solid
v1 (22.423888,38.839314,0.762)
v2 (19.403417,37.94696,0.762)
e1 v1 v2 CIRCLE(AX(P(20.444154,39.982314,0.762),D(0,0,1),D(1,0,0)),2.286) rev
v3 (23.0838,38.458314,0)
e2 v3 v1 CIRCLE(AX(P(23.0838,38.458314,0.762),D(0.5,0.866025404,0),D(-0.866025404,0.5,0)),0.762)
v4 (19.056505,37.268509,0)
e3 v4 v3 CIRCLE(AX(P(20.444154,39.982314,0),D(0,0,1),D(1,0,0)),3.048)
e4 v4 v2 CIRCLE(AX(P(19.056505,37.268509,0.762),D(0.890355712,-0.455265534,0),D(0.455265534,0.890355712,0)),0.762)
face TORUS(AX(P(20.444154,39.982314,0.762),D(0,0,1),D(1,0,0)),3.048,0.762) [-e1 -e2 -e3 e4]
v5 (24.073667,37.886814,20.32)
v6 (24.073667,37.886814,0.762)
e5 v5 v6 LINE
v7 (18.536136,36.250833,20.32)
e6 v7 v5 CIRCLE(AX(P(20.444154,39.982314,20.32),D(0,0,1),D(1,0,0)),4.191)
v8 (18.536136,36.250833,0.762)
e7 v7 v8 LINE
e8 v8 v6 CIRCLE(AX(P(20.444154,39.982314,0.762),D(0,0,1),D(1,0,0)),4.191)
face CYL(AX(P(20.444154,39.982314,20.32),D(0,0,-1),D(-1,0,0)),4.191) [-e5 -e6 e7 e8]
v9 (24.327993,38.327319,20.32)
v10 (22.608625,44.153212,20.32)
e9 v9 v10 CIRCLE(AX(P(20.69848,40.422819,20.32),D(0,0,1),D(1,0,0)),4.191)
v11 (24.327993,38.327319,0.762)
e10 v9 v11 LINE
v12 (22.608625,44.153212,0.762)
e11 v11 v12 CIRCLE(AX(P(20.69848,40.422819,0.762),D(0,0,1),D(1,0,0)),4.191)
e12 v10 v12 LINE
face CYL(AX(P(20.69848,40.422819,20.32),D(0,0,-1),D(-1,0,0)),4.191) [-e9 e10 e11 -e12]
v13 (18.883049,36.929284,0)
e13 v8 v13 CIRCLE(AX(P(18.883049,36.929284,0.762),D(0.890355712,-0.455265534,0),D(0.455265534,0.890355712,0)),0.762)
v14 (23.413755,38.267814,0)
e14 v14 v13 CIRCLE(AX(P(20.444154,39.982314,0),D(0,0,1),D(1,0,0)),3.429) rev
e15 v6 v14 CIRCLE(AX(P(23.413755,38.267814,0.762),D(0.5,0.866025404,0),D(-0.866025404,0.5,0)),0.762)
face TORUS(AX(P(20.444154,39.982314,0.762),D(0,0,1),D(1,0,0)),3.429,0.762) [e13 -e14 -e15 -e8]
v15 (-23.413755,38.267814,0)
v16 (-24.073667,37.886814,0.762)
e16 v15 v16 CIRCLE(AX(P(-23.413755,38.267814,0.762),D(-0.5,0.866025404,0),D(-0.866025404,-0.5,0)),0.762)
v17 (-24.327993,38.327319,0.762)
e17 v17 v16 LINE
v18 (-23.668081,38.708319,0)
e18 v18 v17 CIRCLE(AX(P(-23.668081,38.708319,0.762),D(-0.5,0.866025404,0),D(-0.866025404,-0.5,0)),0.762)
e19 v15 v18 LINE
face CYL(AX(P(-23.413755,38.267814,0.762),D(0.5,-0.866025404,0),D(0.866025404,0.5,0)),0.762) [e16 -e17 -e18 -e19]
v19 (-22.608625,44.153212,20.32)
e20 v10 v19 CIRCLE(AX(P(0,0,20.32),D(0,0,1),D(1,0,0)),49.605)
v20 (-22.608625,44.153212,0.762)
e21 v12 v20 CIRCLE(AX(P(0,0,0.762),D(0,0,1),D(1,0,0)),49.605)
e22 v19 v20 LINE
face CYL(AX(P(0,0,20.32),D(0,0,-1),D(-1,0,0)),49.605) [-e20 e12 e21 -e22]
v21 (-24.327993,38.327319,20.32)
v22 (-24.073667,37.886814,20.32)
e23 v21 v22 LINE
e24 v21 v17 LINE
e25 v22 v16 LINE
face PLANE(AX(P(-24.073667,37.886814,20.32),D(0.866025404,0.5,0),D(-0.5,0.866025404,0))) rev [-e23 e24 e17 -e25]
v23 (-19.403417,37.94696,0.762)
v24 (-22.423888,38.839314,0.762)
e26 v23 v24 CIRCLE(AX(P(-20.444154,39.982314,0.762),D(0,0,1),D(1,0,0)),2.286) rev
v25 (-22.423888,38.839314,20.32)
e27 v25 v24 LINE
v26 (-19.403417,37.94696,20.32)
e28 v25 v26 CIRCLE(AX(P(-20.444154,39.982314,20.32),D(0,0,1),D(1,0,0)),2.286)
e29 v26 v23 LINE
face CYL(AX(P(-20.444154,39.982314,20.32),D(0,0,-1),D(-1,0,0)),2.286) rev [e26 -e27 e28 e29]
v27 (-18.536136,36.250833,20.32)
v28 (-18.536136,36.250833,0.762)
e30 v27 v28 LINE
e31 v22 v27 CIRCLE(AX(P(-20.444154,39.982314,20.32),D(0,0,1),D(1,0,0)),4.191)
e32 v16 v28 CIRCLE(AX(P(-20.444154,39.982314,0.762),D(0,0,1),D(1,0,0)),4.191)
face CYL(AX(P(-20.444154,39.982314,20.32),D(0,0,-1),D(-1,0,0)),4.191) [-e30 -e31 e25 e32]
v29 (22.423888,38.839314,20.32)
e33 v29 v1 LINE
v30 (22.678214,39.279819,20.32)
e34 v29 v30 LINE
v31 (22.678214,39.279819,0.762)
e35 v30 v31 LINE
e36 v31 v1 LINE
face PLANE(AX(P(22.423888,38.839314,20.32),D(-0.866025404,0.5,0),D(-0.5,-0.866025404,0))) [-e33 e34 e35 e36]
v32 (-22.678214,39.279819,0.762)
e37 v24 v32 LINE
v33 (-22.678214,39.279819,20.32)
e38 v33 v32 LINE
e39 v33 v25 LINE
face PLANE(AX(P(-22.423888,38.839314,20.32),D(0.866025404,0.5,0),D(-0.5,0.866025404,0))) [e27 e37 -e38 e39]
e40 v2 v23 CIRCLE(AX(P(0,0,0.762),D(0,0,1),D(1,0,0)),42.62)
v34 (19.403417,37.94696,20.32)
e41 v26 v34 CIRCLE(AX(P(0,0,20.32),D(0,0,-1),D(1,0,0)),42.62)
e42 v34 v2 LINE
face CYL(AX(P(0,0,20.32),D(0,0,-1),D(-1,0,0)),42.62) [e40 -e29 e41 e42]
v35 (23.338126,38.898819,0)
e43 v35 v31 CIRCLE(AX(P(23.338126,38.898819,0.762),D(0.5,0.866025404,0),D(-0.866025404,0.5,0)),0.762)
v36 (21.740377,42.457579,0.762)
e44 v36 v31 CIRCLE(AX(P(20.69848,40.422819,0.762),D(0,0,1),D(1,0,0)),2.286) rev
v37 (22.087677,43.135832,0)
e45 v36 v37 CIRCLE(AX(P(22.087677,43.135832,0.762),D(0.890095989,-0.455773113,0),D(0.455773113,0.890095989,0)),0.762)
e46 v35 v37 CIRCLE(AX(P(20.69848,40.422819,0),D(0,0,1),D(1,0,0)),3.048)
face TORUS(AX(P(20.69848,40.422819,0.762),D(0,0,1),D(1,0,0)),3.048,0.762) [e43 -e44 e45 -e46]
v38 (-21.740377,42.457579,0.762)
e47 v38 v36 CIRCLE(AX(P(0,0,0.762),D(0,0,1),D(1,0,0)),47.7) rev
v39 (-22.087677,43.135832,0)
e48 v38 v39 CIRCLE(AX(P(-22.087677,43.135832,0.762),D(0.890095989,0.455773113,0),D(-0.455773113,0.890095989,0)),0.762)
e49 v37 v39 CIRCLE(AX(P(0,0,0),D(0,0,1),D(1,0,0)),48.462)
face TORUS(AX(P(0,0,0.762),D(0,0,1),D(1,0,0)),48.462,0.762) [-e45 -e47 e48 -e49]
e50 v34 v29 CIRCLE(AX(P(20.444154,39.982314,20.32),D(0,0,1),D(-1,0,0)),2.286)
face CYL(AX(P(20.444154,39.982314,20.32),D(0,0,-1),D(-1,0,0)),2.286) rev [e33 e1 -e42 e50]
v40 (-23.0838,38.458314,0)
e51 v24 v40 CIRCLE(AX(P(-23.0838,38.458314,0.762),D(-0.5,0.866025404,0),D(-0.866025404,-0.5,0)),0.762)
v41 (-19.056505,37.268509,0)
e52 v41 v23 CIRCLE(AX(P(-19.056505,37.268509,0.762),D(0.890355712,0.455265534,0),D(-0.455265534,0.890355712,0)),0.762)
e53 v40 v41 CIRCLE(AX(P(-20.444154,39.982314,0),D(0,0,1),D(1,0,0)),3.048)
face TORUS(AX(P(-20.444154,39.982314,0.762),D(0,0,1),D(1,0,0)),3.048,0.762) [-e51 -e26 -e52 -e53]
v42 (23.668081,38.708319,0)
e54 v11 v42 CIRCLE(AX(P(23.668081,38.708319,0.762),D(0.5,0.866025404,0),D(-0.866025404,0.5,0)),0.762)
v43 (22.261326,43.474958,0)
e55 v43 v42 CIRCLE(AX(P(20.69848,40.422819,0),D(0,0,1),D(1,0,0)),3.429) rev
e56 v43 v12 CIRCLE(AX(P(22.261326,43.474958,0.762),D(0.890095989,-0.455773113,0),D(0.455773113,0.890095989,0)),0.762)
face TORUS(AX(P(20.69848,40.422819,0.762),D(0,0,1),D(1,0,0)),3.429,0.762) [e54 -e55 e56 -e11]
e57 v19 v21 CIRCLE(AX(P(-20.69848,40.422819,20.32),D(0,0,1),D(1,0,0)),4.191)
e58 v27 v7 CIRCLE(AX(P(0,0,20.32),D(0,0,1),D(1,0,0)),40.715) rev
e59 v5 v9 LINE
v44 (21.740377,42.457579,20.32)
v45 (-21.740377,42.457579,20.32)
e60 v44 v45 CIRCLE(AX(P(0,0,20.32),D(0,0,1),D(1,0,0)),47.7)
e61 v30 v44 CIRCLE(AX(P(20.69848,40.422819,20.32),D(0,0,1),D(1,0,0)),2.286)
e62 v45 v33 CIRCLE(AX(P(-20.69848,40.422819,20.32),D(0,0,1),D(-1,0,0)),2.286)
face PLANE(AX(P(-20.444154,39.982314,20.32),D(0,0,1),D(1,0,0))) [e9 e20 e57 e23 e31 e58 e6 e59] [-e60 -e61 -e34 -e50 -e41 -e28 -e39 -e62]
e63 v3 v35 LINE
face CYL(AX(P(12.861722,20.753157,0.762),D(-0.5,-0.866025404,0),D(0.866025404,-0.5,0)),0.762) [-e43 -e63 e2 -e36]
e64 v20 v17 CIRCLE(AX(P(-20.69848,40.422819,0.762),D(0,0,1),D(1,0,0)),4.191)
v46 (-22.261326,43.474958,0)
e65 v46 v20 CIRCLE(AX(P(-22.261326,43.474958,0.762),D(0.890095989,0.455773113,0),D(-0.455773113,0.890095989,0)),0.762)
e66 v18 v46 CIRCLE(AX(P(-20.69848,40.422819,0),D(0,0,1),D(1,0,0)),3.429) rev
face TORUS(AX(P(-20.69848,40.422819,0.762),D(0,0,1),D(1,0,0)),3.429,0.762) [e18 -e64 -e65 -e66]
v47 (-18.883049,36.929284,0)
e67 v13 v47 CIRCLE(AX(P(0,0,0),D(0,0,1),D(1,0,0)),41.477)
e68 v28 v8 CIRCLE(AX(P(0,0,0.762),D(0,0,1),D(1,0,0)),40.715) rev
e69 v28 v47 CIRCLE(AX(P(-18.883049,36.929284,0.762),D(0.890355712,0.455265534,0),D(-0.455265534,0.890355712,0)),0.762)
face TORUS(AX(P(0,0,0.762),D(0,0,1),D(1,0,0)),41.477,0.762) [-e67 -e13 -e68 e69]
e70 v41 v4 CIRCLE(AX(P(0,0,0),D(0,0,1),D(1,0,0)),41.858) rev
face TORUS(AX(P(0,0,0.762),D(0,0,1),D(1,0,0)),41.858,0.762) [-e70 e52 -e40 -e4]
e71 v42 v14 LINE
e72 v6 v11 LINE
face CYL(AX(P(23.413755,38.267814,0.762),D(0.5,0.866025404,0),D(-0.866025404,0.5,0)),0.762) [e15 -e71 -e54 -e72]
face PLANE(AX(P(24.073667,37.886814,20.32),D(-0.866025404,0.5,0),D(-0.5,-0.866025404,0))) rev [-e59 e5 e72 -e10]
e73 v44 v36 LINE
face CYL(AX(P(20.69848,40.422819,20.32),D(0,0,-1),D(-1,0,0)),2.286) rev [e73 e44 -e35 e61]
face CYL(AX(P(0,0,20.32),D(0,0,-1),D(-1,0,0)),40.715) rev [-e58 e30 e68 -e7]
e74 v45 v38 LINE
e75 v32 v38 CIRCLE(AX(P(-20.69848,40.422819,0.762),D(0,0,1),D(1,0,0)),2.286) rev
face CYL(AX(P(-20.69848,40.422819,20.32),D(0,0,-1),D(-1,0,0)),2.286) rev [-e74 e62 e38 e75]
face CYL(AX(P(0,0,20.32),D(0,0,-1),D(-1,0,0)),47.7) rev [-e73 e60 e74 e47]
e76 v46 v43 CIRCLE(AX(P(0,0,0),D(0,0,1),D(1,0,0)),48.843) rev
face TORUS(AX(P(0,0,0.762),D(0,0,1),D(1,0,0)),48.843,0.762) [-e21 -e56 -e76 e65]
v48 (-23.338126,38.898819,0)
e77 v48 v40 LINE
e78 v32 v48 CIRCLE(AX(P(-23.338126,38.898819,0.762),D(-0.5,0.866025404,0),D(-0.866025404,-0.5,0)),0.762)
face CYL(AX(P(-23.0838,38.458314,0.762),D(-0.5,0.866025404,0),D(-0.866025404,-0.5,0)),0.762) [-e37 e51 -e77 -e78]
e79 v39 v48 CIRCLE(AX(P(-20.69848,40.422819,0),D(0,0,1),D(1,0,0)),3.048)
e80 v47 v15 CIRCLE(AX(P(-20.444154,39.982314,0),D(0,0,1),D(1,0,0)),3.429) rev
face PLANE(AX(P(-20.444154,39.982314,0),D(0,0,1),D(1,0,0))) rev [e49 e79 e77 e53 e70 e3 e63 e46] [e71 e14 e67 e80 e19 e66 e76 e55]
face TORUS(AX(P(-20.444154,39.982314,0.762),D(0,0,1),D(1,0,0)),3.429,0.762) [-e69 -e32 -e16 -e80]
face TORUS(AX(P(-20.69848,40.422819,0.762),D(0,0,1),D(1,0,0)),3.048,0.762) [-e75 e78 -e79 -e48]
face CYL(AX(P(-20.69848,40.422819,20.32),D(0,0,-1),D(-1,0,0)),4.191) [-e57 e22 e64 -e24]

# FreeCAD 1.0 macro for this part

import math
import FreeCAD as App
import Part
import Sketcher

V = App.Vector
Q = App.Units.Quantity


def edges_at(feature, points):
    """Names of the edges that pass closest to the given points."""
    edges = feature.Shape.Edges
    near = lambda p: min(range(len(edges)), key=lambda i: edges[i].distToShape(Part.Vertex(*p))[0])
    return sorted({f"Edge{near(p) + 1}" for p in points})

doc = App.newDocument("Part")
body = doc.addObject("PartDesign::Body", "Body")

sketch1 = body.newObject("Sketcher::SketchObject", "Sketch")
sketch1.AttachmentSupport = (doc.getObject("XY_Plane"), [""])
sketch1.MapMode = "FlatFace"
sketch1.addGeometry([
    Part.LineSegment(V(24.1, 37.9, 0), V(24.3, 38.3, 0)),
    Part.ArcOfCircle(Part.Circle(V(20.7, 40.4, 0), V(0, 0, 1), 4.2), math.radians(-30), math.radians(63)),
    Part.ArcOfCircle(Part.Circle(V(0, 0, 0), V(0, 0, 1), 49.6), math.radians(63), math.radians(117)),
    Part.ArcOfCircle(Part.Circle(V(-20.7, 40.4, 0), V(0, 0, 1), 4.2), math.radians(117), math.radians(210)),
    Part.LineSegment(V(-24.3, 38.3, 0), V(-24.1, 37.9, 0)),
    Part.ArcOfCircle(Part.Circle(V(-20.4, 40, 0), V(0, 0, 1), 4.2), math.radians(-150), math.radians(-63)),
    Part.ArcOfCircle(Part.Circle(V(0, 0, 0), V(0, 0, 1), 40.7), math.radians(63), math.radians(117)),
    Part.ArcOfCircle(Part.Circle(V(20.4, 40, 0), V(0, 0, 1), 4.2), math.radians(-117), math.radians(-30)),
    Part.LineSegment(V(22.7, 39.3, 0), V(22.4, 38.8, 0)),
    Part.ArcOfCircle(Part.Circle(V(20.4, 40, 0), V(0, 0, 1), 2.3), math.radians(-117), math.radians(-30)),
    Part.ArcOfCircle(Part.Circle(V(0, 0, 0), V(0, 0, 1), 42.6), math.radians(63), math.radians(117)),
    Part.ArcOfCircle(Part.Circle(V(-20.4, 40, 0), V(0, 0, 1), 2.3), math.radians(-150), math.radians(-63)),
    Part.LineSegment(V(-22.4, 38.8, 0), V(-22.7, 39.3, 0)),
    Part.ArcOfCircle(Part.Circle(V(-20.7, 40.4, 0), V(0, 0, 1), 2.3), math.radians(117), math.radians(210)),
    Part.ArcOfCircle(Part.Circle(V(0, 0, 0), V(0, 0, 1), 47.7), math.radians(63), math.radians(117)),
    Part.ArcOfCircle(Part.Circle(V(20.7, 40.4, 0), V(0, 0, 1), 2.3), math.radians(-30), math.radians(63)),
], False)
sketch1.addConstraint([
    Sketcher.Constraint("Tangent", 0, 2, 1, 1),
    Sketcher.Constraint("Tangent", 1, 2, 2, 1),
    Sketcher.Constraint("Tangent", 2, 2, 3, 1),
    Sketcher.Constraint("Tangent", 3, 2, 4, 1),
    Sketcher.Constraint("Tangent", 4, 2, 5, 1),
    Sketcher.Constraint("Tangent", 5, 2, 6, 2),
    Sketcher.Constraint("Tangent", 6, 1, 7, 1),
    Sketcher.Constraint("Tangent", 7, 2, 0, 1),
    Sketcher.Constraint("Tangent", 8, 2, 9, 2),
    Sketcher.Constraint("Tangent", 9, 1, 10, 1),
    Sketcher.Constraint("Tangent", 10, 2, 11, 2),
    Sketcher.Constraint("Tangent", 11, 1, 12, 1),
    Sketcher.Constraint("Tangent", 12, 2, 13, 2),
    Sketcher.Constraint("Tangent", 13, 1, 14, 2),
    Sketcher.Constraint("Tangent", 14, 1, 15, 2),
    Sketcher.Constraint("Tangent", 15, 1, 8, 1),
    Sketcher.Constraint("Coincident", 2, 3, -1, 1),
    Sketcher.Constraint("Coincident", 6, 3, -1, 1),
    Sketcher.Constraint("Coincident", 10, 3, -1, 1),
    Sketcher.Constraint("Coincident", 14, 3, -1, 1),
    Sketcher.Constraint("Coincident", 9, 3, 7, 3),
    Sketcher.Constraint("Coincident", 11, 3, 5, 3),
    Sketcher.Constraint("Coincident", 13, 3, 3, 3),
    Sketcher.Constraint("Coincident", 15, 3, 1, 3),
    Sketcher.Constraint("Equal", 1, 3),
    Sketcher.Constraint("Equal", 3, 5),
    Sketcher.Constraint("Equal", 5, 7),
    Sketcher.Constraint("Equal", 11, 13),
    Sketcher.Constraint("Symmetric", 0, 2, 3, 2, -2),
    Sketcher.Constraint("Radius", 9, Q("0.09 in")),
    Sketcher.Constraint("Angle", 0, Q("60 deg")),
    Sketcher.Constraint("Radius", 1, Q("0.165 in")),
    Sketcher.Constraint("Radius", 2, Q("49.605 mm")),
    Sketcher.Constraint("Radius", 6, Q("40.715 mm")),
    Sketcher.Constraint("DistanceX", -1, 1, 1, 3, Q("20.69848 mm")),
])
pad1 = body.newObject("PartDesign::Pad", "Pad")
pad1.Profile = sketch1
pad1.Length = Q("0.8 in")
doc.recompute()

fillet = body.newObject("PartDesign::Fillet", "Fillet")
fillet.Base = (pad1, edges_at(pad1, [
    (-21.092, 37.79, 0),
    (0, 42.62, 0),
    (21.092, 37.79, 0),
    (22.551, 39.06, 0),
    (22.891, 41.07, 0),
    (0, 47.7, 0),
    (-22.891, 41.07, 0),
    (-22.551, 39.06, 0),
    (-24.201, 38.107, 0),
    (-24.718, 41.609, 0),
    (0, 49.605, 0),
    (24.718, 41.609, 0),
    (24.201, 38.107, 0),
    (21.632, 35.963, 0),
    (0, 40.715, 0),
    (-21.632, 35.963, 0),
]))
fillet.Radius = Q("0.03 in")

doc.recompute()
